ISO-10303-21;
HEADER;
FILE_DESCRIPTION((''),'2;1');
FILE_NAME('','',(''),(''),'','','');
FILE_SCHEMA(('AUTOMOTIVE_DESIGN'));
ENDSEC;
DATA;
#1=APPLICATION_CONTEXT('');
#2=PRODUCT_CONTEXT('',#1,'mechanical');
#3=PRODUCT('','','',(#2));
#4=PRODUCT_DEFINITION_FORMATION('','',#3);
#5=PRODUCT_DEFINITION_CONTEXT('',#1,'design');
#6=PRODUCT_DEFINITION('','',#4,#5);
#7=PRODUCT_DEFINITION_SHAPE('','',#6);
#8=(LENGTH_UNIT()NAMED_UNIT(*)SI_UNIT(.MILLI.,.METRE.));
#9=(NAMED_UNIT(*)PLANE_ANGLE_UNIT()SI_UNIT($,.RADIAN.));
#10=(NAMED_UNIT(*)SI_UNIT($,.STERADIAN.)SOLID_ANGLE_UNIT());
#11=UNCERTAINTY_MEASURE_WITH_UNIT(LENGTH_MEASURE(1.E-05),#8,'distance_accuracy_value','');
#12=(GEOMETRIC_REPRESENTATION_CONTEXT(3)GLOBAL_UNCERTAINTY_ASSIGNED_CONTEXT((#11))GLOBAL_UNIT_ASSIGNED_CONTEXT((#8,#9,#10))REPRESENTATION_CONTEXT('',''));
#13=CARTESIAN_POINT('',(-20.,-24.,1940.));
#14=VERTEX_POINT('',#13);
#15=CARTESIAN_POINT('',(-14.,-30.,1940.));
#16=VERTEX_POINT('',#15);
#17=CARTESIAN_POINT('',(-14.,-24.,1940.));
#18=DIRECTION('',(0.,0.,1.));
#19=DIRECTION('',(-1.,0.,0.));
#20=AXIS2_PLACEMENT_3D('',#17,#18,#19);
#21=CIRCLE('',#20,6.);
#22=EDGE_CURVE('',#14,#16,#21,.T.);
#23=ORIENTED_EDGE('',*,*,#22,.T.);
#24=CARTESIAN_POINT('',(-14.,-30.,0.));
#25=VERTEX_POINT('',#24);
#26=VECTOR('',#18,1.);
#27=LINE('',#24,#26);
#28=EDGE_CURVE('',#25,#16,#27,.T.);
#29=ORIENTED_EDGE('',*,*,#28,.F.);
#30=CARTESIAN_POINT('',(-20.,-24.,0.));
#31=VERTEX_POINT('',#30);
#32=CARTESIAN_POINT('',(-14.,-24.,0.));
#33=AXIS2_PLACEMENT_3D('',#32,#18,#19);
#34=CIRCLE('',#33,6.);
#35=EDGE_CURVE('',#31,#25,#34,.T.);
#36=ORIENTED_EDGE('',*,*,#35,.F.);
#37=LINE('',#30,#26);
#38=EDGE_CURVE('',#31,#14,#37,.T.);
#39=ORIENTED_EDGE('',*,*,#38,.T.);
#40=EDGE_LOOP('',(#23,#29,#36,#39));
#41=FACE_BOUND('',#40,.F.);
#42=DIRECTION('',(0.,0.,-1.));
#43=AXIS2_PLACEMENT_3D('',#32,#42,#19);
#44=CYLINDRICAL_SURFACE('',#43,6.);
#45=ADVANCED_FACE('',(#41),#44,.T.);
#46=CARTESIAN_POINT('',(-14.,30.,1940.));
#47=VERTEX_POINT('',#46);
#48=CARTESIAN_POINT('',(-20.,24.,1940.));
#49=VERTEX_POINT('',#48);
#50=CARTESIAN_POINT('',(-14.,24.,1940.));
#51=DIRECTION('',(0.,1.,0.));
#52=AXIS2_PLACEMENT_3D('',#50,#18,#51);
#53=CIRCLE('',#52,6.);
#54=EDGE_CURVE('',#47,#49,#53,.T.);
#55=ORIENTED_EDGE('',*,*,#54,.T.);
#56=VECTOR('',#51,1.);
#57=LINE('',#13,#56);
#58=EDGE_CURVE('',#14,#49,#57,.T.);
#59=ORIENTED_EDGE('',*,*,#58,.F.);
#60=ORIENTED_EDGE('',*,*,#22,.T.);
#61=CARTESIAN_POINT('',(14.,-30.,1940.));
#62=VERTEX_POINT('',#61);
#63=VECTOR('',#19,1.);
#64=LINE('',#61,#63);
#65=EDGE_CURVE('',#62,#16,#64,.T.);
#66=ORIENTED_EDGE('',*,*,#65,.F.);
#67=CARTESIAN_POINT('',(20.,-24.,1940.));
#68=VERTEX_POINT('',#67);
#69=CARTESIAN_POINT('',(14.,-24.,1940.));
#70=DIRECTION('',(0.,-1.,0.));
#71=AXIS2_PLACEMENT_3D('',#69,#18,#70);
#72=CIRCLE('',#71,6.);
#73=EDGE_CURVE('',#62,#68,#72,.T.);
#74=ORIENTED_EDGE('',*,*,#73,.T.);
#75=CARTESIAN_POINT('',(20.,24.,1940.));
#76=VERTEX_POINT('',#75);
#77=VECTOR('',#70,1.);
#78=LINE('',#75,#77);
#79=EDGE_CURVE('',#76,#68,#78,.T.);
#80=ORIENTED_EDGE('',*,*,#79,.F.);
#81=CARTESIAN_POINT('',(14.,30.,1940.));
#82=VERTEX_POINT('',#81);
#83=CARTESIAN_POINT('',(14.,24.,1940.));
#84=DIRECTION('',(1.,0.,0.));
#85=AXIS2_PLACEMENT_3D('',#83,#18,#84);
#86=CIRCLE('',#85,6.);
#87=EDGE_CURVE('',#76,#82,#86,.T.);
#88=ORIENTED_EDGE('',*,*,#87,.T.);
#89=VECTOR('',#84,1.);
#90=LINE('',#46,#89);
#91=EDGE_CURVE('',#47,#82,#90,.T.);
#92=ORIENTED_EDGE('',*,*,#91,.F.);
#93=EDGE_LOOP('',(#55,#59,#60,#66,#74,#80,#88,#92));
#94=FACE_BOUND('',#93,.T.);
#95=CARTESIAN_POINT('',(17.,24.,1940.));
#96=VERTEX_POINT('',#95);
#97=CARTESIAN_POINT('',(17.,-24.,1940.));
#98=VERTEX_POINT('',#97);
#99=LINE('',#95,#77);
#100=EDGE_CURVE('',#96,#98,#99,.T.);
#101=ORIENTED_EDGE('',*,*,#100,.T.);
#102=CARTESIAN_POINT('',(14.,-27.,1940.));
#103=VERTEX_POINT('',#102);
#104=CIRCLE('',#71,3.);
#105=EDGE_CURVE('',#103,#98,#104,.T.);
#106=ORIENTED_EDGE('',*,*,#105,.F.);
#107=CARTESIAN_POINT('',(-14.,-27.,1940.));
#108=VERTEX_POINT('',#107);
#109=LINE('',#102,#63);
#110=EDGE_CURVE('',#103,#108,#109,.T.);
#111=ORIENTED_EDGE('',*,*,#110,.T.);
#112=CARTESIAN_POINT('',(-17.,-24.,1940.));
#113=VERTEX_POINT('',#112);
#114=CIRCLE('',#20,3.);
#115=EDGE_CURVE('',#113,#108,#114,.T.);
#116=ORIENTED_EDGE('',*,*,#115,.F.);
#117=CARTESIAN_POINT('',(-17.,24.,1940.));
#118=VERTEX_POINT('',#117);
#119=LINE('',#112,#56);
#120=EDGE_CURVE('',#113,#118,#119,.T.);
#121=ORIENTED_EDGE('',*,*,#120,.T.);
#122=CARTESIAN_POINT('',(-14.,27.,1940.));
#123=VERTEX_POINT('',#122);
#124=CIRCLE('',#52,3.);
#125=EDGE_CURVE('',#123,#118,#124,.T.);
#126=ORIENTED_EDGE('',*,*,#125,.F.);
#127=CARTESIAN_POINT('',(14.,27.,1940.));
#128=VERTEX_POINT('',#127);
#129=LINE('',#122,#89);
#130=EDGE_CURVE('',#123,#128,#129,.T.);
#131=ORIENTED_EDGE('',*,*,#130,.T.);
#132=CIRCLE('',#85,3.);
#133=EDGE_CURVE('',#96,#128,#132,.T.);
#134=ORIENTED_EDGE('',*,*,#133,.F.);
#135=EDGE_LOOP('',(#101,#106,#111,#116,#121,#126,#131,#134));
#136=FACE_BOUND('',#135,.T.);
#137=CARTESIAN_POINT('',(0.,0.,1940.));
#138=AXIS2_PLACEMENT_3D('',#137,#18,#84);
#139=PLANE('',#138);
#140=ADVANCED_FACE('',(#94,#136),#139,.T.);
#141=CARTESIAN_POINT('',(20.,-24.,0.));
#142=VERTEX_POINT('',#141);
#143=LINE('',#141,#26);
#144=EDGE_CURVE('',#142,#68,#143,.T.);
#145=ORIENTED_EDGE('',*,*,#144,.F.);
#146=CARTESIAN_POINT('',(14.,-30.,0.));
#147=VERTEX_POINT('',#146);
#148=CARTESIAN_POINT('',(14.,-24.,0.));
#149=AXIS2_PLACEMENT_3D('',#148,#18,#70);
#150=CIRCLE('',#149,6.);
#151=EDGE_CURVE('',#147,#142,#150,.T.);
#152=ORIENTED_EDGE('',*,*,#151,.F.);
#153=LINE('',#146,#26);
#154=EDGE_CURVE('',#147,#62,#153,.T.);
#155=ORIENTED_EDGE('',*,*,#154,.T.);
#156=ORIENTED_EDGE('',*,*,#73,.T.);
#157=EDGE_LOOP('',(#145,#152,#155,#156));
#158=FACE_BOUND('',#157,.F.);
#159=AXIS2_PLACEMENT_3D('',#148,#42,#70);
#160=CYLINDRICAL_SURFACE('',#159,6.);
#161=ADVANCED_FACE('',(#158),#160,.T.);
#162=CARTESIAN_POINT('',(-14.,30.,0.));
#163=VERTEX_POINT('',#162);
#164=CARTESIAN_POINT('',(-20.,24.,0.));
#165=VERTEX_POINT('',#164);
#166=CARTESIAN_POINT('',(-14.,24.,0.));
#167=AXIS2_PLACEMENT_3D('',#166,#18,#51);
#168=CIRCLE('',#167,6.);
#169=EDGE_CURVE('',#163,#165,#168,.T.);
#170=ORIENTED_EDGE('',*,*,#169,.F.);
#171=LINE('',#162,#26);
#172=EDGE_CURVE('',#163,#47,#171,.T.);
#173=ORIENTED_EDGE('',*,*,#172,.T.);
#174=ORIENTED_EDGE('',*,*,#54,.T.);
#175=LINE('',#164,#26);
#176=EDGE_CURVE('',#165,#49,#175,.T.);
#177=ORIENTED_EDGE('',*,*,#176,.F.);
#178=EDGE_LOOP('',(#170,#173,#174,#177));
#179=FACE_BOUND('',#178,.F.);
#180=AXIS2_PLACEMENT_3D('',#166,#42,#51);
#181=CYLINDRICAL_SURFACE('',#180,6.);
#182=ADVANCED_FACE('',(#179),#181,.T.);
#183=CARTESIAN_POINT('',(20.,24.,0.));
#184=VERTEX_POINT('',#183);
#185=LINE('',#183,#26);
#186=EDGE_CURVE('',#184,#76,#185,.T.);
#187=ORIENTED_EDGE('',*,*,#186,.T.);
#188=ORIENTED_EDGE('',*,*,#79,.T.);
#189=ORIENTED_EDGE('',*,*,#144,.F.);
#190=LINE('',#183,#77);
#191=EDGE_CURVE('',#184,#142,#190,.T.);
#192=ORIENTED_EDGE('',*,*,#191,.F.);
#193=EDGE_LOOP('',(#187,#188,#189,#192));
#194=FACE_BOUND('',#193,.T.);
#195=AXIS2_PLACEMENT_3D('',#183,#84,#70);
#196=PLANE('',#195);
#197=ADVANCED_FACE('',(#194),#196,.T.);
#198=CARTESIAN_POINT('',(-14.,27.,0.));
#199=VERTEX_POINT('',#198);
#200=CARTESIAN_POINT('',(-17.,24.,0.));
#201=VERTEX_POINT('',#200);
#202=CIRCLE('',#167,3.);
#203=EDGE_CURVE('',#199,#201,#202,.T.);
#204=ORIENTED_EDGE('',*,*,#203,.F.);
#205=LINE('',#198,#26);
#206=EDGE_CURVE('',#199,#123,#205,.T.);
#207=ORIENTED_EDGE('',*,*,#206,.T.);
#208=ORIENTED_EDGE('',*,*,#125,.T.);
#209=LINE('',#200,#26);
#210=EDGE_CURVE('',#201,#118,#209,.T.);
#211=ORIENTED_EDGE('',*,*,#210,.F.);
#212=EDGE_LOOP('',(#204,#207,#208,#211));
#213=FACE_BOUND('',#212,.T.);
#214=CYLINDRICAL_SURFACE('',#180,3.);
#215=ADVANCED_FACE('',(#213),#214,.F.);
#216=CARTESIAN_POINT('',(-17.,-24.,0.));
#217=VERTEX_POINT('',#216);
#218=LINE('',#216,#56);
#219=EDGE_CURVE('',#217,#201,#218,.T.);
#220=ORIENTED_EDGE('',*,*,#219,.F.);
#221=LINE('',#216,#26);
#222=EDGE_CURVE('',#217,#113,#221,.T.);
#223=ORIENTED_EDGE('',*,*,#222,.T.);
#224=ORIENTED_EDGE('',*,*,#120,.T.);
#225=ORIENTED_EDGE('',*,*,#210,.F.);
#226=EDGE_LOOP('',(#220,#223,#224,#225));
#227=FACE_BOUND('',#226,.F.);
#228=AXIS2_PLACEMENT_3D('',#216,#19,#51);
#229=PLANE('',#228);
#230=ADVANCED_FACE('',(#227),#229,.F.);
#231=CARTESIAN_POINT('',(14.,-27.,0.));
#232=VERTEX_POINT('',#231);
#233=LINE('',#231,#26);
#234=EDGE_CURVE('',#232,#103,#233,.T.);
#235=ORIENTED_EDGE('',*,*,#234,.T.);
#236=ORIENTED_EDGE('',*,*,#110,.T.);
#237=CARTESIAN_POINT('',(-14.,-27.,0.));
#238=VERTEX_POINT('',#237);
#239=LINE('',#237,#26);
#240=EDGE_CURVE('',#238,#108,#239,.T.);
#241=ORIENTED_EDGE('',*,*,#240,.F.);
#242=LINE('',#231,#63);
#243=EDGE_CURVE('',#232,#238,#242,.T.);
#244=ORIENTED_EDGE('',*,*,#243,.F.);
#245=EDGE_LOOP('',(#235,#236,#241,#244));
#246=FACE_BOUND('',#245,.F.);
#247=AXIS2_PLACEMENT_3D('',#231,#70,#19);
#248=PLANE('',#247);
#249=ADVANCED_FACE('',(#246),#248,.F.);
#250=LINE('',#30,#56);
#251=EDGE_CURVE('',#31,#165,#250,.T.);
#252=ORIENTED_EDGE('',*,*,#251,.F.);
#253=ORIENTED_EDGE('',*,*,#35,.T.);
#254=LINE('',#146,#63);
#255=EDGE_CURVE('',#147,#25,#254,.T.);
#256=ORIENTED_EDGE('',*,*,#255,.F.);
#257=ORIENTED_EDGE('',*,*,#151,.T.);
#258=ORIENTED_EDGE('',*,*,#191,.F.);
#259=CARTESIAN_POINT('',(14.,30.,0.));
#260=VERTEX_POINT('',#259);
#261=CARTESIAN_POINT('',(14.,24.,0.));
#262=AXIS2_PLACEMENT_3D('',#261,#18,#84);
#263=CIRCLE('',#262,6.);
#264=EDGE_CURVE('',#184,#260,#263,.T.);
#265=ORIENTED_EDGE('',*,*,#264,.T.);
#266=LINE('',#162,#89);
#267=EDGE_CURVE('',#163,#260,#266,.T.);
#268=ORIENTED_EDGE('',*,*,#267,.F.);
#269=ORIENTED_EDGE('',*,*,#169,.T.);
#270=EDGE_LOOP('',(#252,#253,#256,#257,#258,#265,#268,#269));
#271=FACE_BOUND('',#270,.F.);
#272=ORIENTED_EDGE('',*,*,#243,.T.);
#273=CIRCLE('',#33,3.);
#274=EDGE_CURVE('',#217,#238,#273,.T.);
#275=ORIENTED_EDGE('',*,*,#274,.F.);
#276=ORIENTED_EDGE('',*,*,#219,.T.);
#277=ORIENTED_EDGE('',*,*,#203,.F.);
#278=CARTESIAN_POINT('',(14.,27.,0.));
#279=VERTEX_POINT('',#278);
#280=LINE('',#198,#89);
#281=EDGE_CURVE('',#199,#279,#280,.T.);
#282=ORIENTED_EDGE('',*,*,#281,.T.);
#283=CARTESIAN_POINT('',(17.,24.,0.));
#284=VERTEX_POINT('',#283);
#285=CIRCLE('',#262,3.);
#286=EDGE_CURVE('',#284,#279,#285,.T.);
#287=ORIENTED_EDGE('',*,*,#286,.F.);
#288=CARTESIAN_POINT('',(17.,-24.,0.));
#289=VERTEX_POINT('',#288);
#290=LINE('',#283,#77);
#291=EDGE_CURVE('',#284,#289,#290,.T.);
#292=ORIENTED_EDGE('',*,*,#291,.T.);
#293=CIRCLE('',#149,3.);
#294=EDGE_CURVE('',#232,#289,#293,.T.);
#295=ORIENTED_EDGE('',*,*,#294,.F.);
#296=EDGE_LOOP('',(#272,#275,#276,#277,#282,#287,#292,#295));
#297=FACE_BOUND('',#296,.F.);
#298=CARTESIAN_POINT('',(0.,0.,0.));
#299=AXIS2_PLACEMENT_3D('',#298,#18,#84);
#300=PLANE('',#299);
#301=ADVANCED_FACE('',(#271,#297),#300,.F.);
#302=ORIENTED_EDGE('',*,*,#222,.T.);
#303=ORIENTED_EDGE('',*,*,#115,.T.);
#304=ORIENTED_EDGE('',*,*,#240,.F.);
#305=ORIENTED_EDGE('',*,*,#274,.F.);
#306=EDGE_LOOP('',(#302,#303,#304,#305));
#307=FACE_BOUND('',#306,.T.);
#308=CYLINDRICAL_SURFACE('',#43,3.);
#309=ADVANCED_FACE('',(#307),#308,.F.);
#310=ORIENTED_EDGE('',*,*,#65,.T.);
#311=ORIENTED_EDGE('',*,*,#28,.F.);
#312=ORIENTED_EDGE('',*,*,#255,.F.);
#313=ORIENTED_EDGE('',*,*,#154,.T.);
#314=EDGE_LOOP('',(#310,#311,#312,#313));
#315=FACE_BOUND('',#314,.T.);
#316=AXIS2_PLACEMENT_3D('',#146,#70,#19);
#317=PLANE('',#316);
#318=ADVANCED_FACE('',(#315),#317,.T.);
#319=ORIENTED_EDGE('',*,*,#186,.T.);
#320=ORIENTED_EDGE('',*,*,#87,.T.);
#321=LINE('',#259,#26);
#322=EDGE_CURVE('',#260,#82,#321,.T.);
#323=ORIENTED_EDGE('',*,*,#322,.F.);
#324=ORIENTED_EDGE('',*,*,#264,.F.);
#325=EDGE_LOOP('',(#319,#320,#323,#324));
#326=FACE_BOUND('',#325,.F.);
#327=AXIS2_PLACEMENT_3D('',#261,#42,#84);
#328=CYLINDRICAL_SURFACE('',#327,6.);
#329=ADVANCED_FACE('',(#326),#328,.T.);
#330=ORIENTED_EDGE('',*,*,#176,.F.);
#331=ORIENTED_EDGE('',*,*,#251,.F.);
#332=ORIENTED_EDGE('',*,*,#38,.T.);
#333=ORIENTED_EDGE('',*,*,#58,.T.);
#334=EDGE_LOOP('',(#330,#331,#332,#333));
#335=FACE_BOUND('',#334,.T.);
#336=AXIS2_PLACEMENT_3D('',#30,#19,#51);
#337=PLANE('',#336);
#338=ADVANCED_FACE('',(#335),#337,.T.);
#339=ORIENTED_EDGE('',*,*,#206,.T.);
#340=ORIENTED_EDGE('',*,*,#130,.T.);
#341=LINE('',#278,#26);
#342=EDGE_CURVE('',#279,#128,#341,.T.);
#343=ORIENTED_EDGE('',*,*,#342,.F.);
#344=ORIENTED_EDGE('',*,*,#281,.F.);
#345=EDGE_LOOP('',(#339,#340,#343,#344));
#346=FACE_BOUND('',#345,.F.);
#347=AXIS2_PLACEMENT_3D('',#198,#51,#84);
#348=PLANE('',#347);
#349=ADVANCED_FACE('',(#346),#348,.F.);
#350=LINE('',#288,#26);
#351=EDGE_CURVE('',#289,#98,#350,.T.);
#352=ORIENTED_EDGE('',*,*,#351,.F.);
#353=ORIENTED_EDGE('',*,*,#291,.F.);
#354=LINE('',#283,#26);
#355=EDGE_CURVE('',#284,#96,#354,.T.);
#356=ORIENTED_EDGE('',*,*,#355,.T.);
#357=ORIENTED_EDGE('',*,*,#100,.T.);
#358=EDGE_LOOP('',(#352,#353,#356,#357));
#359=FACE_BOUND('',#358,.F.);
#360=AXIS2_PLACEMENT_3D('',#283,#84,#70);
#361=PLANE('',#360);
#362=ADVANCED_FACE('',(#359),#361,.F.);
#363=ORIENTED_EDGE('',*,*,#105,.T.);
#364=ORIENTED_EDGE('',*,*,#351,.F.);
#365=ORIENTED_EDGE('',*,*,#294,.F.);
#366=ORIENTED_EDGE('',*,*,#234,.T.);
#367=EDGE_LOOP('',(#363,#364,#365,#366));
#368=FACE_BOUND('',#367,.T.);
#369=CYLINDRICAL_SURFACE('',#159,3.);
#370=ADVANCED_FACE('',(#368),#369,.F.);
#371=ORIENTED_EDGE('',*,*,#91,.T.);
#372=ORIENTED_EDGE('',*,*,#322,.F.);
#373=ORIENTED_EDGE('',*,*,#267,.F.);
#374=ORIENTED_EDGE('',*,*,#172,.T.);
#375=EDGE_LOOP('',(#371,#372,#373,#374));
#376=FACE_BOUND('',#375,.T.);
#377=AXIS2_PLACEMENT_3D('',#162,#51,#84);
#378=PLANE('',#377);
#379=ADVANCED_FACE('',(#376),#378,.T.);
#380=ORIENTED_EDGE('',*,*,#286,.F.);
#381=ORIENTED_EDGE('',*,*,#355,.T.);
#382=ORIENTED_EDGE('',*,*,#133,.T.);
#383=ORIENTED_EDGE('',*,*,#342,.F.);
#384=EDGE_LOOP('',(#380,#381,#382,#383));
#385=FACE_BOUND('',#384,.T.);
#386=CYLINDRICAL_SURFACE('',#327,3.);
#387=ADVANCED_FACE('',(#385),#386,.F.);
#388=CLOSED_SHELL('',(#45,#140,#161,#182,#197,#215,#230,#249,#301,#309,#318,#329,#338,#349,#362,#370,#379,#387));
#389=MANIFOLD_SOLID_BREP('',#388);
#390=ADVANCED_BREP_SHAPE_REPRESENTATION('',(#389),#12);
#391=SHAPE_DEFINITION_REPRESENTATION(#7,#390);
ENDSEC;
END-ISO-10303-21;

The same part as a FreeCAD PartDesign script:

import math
import FreeCAD as App
import Part
import Sketcher
Q = App.Units.Quantity

doc = App.newDocument("Part")
body = doc.addObject("PartDesign::Body", "Body")

# Sketch on XY plane
sketch1 = doc.addObject("Sketcher::SketchObject", "Sketch")
body.addObject(sketch1)
sketch1.AttachmentSupport = (doc.XY_Plane, [""])
sketch1.MapMode = "FlatFace"
sketch1.addGeometry([
    Part.LineSegment(App.Vector(-20, 24, 0), App.Vector(-20, -24, 0)),  # 0
    Part.ArcOfCircle(Part.Circle(App.Vector(-14, -24, 0), App.Vector(0, 0, 1), 6), math.radians(180), math.radians(270)),  # 1
    Part.LineSegment(App.Vector(-14, -30, 0), App.Vector(14, -30, 0)),  # 2
    Part.ArcOfCircle(Part.Circle(App.Vector(14, -24, 0), App.Vector(0, 0, 1), 6), math.radians(-90), math.radians(0)),  # 3
    Part.LineSegment(App.Vector(20, -24, 0), App.Vector(20, 24, 0)),  # 4
    Part.ArcOfCircle(Part.Circle(App.Vector(14, 24, 0), App.Vector(0, 0, 1), 6), math.radians(0), math.radians(90)),  # 5
    Part.LineSegment(App.Vector(14, 30, 0), App.Vector(-14, 30, 0)),  # 6
    Part.ArcOfCircle(Part.Circle(App.Vector(-14, 24, 0), App.Vector(0, 0, 1), 6), math.radians(90), math.radians(180)),  # 7
    Part.ArcOfCircle(Part.Circle(App.Vector(-14, 24, 0), App.Vector(0, 0, 1), 3), math.radians(90), math.radians(180)),  # 8
    Part.LineSegment(App.Vector(-14, 27, 0), App.Vector(14, 27, 0)),  # 9
    Part.ArcOfCircle(Part.Circle(App.Vector(14, 24, 0), App.Vector(0, 0, 1), 3), math.radians(0), math.radians(90)),  # 10
    Part.LineSegment(App.Vector(17, 24, 0), App.Vector(17, -24, 0)),  # 11
    Part.ArcOfCircle(Part.Circle(App.Vector(14, -24, 0), App.Vector(0, 0, 1), 3), math.radians(-90), math.radians(0)),  # 12
    Part.LineSegment(App.Vector(14, -27, 0), App.Vector(-14, -27, 0)),  # 13
    Part.ArcOfCircle(Part.Circle(App.Vector(-14, -24, 0), App.Vector(0, 0, 1), 3), math.radians(180), math.radians(270)),  # 14
    Part.LineSegment(App.Vector(-17, -24, 0), App.Vector(-17, 24, 0)),  # 15
], False)
sketch1.addConstraint([
    Sketcher.Constraint("Tangent", 0, 2, 1, 1),
    Sketcher.Constraint("Tangent", 1, 2, 2, 1),
    Sketcher.Constraint("Tangent", 2, 2, 3, 1),
    Sketcher.Constraint("Tangent", 3, 2, 4, 1),
    Sketcher.Constraint("Tangent", 4, 2, 5, 1),
    Sketcher.Constraint("Tangent", 5, 2, 6, 1),
    Sketcher.Constraint("Tangent", 6, 2, 7, 1),
    Sketcher.Constraint("Tangent", 7, 2, 0, 1),
    Sketcher.Constraint("Tangent", 8, 1, 9, 1),
    Sketcher.Constraint("Tangent", 9, 2, 10, 2),
    Sketcher.Constraint("Tangent", 10, 1, 11, 1),
    Sketcher.Constraint("Tangent", 11, 2, 12, 2),
    Sketcher.Constraint("Tangent", 12, 1, 13, 1),
    Sketcher.Constraint("Tangent", 13, 2, 14, 2),
    Sketcher.Constraint("Tangent", 14, 1, 15, 1),
    Sketcher.Constraint("Tangent", 15, 2, 8, 2),
    Sketcher.Constraint("Vertical", 0),
    Sketcher.Constraint("Horizontal", 2),
    Sketcher.Constraint("Vertical", 4),
    Sketcher.Constraint("Horizontal", 6),
    Sketcher.Constraint("Horizontal", 9),
    Sketcher.Constraint("Vertical", 11),
    Sketcher.Constraint("Horizontal", 13),
    Sketcher.Constraint("Vertical", 15),
    Sketcher.Constraint("Coincident", 8, 3, 7, 3),
    Sketcher.Constraint("Coincident", 10, 3, 5, 3),
    Sketcher.Constraint("Coincident", 12, 3, 3, 3),
    Sketcher.Constraint("Equal", 1, 3),
    Sketcher.Constraint("Equal", 3, 5),
    Sketcher.Constraint("Equal", 5, 7),
    Sketcher.Constraint("Equal", 12, 14),
    Sketcher.Constraint("Symmetric", 1, 3, 5, 3, -1, 1),
    Sketcher.Constraint("Radius", 1, Q("6 mm")),
    Sketcher.Constraint("Radius", 8, Q("3 mm")),
    Sketcher.Constraint("DistanceX", 0, 2, -1, 1, Q("20 mm")),
    Sketcher.Constraint("DistanceY", 1, 2, -1, 1, Q("30 mm")),
])
pad1 = doc.addObject("PartDesign::Pad", "Pad")
body.addObject(pad1)
pad1.Profile = sketch1
pad1.Length = 1940

doc.recompute()
